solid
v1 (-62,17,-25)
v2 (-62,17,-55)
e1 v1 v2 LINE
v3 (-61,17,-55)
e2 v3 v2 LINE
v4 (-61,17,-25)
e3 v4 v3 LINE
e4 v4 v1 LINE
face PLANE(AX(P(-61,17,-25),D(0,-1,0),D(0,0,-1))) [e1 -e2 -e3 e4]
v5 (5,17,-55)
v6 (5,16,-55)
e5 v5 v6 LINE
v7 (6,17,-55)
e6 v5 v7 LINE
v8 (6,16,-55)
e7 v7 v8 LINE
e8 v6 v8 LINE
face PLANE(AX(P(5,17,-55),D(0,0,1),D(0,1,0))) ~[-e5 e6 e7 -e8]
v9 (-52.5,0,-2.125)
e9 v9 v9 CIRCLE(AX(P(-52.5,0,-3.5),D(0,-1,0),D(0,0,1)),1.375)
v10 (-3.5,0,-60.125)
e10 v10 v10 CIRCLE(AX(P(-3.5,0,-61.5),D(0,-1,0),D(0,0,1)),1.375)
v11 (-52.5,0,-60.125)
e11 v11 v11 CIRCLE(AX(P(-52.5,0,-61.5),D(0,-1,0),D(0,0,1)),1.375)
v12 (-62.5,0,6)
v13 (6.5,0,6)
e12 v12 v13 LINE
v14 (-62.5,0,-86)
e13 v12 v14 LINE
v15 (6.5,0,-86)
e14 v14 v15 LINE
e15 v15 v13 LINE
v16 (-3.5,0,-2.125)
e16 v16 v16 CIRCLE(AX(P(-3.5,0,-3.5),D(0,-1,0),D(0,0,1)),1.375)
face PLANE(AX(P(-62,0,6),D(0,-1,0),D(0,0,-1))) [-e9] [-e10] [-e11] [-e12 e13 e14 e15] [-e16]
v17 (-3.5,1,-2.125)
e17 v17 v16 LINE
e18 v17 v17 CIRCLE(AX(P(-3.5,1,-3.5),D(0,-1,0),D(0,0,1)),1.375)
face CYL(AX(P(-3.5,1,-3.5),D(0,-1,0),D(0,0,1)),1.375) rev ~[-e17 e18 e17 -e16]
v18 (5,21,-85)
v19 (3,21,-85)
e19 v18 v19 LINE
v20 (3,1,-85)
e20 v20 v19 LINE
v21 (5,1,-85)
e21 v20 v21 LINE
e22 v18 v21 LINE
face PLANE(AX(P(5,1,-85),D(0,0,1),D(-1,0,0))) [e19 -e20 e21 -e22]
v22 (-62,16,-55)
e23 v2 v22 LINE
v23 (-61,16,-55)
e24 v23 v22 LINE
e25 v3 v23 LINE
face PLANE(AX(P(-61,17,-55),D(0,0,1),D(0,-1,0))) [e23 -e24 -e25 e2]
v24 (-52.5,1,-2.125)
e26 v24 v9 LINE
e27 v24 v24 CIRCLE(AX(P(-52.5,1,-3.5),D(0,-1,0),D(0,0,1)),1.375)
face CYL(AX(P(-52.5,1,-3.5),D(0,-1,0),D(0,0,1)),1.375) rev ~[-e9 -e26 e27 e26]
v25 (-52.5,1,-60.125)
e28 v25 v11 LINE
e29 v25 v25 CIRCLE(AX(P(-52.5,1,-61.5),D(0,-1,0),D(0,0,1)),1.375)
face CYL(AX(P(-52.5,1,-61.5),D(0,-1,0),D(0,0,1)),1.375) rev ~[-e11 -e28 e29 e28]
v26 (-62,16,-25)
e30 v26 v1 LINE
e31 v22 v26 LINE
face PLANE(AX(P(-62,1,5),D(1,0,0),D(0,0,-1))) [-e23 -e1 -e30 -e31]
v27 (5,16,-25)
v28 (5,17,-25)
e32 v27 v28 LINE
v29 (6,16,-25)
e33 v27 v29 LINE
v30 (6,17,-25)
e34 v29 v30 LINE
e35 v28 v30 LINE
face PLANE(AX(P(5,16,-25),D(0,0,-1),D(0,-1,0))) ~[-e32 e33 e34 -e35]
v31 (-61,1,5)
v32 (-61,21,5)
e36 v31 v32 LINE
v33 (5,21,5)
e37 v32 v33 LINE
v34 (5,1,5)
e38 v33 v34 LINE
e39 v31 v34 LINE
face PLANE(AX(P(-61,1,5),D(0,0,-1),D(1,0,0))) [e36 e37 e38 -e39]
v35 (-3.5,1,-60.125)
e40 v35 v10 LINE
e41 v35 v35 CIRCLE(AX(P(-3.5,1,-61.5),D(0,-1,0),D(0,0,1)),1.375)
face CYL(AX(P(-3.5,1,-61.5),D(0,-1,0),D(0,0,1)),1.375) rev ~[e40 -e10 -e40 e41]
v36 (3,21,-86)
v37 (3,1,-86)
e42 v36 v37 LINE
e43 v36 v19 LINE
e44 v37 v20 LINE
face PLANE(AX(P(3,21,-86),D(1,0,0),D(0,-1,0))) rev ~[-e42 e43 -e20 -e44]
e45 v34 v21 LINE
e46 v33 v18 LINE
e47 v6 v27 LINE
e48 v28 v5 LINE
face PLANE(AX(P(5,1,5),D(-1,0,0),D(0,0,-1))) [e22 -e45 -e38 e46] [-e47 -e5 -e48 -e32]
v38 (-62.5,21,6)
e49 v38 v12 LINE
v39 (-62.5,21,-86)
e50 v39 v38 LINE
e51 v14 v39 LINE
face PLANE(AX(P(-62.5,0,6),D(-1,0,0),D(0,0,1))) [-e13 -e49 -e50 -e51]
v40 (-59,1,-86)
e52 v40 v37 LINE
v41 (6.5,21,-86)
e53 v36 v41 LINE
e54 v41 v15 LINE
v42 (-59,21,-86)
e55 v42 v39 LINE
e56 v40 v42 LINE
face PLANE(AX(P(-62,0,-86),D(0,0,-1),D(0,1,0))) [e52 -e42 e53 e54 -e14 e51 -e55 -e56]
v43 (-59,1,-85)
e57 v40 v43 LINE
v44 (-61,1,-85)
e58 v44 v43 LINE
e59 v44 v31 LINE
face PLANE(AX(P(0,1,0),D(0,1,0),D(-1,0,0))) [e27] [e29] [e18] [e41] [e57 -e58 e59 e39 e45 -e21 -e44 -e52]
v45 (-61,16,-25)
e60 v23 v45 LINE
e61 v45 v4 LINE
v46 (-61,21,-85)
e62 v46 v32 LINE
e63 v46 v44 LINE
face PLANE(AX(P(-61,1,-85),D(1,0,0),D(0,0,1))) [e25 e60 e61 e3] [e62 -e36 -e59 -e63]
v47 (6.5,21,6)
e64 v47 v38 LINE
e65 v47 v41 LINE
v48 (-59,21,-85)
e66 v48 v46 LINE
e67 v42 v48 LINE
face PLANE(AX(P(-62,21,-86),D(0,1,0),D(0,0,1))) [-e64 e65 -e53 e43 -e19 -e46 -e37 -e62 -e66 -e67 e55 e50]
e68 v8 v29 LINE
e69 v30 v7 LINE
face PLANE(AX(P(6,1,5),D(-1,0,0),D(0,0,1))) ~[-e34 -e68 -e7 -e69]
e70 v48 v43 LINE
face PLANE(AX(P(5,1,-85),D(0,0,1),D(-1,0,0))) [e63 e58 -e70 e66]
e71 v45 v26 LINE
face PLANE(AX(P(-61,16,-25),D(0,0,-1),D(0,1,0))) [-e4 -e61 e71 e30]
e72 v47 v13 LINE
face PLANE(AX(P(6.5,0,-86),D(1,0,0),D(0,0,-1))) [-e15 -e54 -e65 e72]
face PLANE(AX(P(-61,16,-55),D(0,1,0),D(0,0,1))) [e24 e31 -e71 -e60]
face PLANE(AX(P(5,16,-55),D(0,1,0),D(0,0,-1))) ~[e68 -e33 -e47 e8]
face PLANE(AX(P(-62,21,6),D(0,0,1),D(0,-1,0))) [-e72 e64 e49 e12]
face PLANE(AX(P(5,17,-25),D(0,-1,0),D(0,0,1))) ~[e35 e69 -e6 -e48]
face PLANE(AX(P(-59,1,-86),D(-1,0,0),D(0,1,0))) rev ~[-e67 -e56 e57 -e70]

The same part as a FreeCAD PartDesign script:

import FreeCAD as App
import Part
import Sketcher

V = App.Vector
Q = App.Units.Quantity


def add_polygon(sketch, points):
    """Adds a closed chain of lines whose ends are joined by coincident constraints."""
    first, n = sketch.GeometryCount, len(points)
    for a, b in zip(points, points[1:] + points[:1]):
        sketch.addGeometry(Part.LineSegment(App.Vector(*a, 0), App.Vector(*b, 0)), False)
    for i in range(n):
        sketch.addConstraint(Sketcher.Constraint("Coincident", first + i, 2, first + (i + 1) % n, 1))

doc = App.newDocument("Part")
body = doc.addObject("PartDesign::Body", "Body")

# Sketch on XZ plane
sketch1 = body.newObject("Sketcher::SketchObject", "Sketch")
sketch1.AttachmentSupport = (doc.getObject("XZ_Plane"), [""])
sketch1.MapMode = "FlatFace"
add_polygon(sketch1, [(5, -85), (-61, -85), (-61, 5), (5, 5)])  # lines 0-3
sketch1.addConstraint([
    Sketcher.Constraint("Horizontal", 0),
    Sketcher.Constraint("Vertical", 1),
    Sketcher.Constraint("Horizontal", 2),
    Sketcher.Constraint("Vertical", 3),
    Sketcher.Constraint("DistanceY", 1, 1, 1, 2, Q("90 mm")),
    Sketcher.Constraint("DistanceY", 0, 2, -1, 1, Q("85 mm")),
    Sketcher.Constraint("DistanceX", -1, 1, 2, 2, Q("5 mm")),
    Sketcher.Constraint("DistanceX", 0, 2, 0, 1, Q("66 mm")),
])
pad1 = body.newObject("PartDesign::Pad", "Pad")
pad1.Profile = sketch1
pad1.Length = 1
pad1.Reversed = True

# Sketch on XZ plane
sketch2 = body.newObject("Sketcher::SketchObject", "Sketch001")
sketch2.AttachmentSupport = (doc.getObject("XZ_Plane"), [""])
sketch2.MapMode = "FlatFace"
sketch2.AttachmentOffset = App.Placement(V(0, 0, -1), App.Rotation())
sketch2.addGeometry([
    Part.Circle(V(-52.5, -61.5, 0), V(0, 0, 1), 1.4),
    Part.Circle(V(-52.5, -3.5, 0), V(0, 0, 1), 1.4),
    Part.Circle(V(-3.5, -3.5, 0), V(0, 0, 1), 1.4),
    Part.Circle(V(-3.5, -61.5, 0), V(0, 0, 1), 1.4),
], False)
sketch2.addConstraint([
    Sketcher.Constraint("Equal", 0, 1),
    Sketcher.Constraint("Equal", 1, 2),
    Sketcher.Constraint("Equal", 2, 3),
    Sketcher.Constraint("Horizontal", 1, 3, 2, 3),
    Sketcher.Constraint("Horizontal", 0, 3, 3, 3),
    Sketcher.Constraint("Vertical", 0, 3, 1, 3),
    Sketcher.Constraint("Vertical", 2, 3, 3, 3),
    Sketcher.Constraint("Diameter", 0, Q("2.75 mm")),
    Sketcher.Constraint("DistanceY", 0, 3, 1, 3, Q("58 mm")),
    Sketcher.Constraint("DistanceX", 1, 3, 2, 3, Q("49 mm")),
    Sketcher.Constraint("DistanceX", 0, 3, -1, 1, Q("52.5 mm")),
    Sketcher.Constraint("DistanceY", 0, 3, -1, 1, Q("61.5 mm")),
])
doc.recompute()
hole = body.newObject("PartDesign::Hole", "Hole")
hole.Profile = sketch2
hole.ThreadType = "None"
hole.Diameter = 2.75
hole.DepthType = "ThroughAll"
hole.Reversed = True

# Sketch on XZ plane
sketch3 = body.newObject("Sketcher::SketchObject", "Sketch002")
sketch3.AttachmentSupport = (doc.getObject("XZ_Plane"), [""])
sketch3.MapMode = "FlatFace"
sketch3.AttachmentOffset = App.Placement(V(0, 0, -1), App.Rotation())
add_polygon(sketch3, [(6, -86), (-62, -86), (-62, 6), (6, 6)])  # lines 0-3
add_polygon(sketch3, [(5, 5), (-61, 5), (-61, -85), (5, -85)])  # lines 4-7
sketch3.addConstraint([
    Sketcher.Constraint("Horizontal", 0),
    Sketcher.Constraint("Vertical", 1),
    Sketcher.Constraint("Horizontal", 2),
    Sketcher.Constraint("Vertical", 3),
    Sketcher.Constraint("Horizontal", 4),
    Sketcher.Constraint("Vertical", 5),
    Sketcher.Constraint("Horizontal", 6),
    Sketcher.Constraint("Vertical", 7),
    Sketcher.Constraint("DistanceX", 1, 2, 4, 2, Q("1 mm")),
    Sketcher.Constraint("DistanceY", 4, 2, 1, 2, Q("1 mm")),
    Sketcher.Constraint("DistanceY", 0, 2, 5, 2, Q("1 mm")),
    Sketcher.Constraint("DistanceX", 6, 2, 3, 2, Q("1 mm")),
    Sketcher.Constraint("DistanceX", 0, 2, 0, 1, Q("68 mm")),
    Sketcher.Constraint("DistanceY", 1, 1, 1, 2, Q("92 mm")),
    Sketcher.Constraint("DistanceX", 0, 2, -1, 1, Q("62 mm")),
    Sketcher.Constraint("DistanceY", 0, 2, -1, 1, Q("86 mm")),
])
pad2 = body.newObject("PartDesign::Pad", "Pad001")
pad2.Profile = sketch3
pad2.Type = "TwoLengths"
pad2.Length = 20
pad2.Length2 = 1
pad2.Reversed = True

# Sketch on XY plane
sketch4 = body.newObject("Sketcher::SketchObject", "Sketch003")
sketch4.AttachmentSupport = (doc.getObject("XY_Plane"), [""])
sketch4.MapMode = "FlatFace"
sketch4.AttachmentOffset = App.Placement(V(0, 0, -86), App.Rotation())
add_polygon(sketch4, [(3, 1), (-59, 1), (-59, 21), (3, 21)])  # lines 0-3
sketch4.addConstraint([
    Sketcher.Constraint("Horizontal", 0),
    Sketcher.Constraint("Vertical", 1),
    Sketcher.Constraint("Horizontal", 2),
    Sketcher.Constraint("Vertical", 3),
    Sketcher.Constraint("DistanceX", 0, 2, 0, 1, Q("62 mm")),
    Sketcher.Constraint("DistanceY", 1, 1, 1, 2, Q("20 mm")),
    Sketcher.Constraint("DistanceX", 0, 2, -1, 1, Q("59 mm")),
    Sketcher.Constraint("DistanceY", -1, 1, 0, 2, Q("1 mm")),
])
pocket1 = body.newObject("PartDesign::Pocket", "Pocket")
pocket1.Profile = sketch4
pocket1.Length = 2
pocket1.Reversed = True

# Sketch on YZ plane
sketch5 = body.newObject("Sketcher::SketchObject", "Sketch004")
sketch5.AttachmentSupport = (doc.getObject("YZ_Plane"), [""])
sketch5.MapMode = "FlatFace"
sketch5.AttachmentOffset = App.Placement(V(0, 0, 6), App.Rotation())
add_polygon(sketch5, [(0, -86), (21, -86), (21, 6), (0, 6)])  # lines 0-3
sketch5.addConstraint([
    Sketcher.Constraint("Horizontal", 0),
    Sketcher.Constraint("Vertical", 1),
    Sketcher.Constraint("Horizontal", 2),
    Sketcher.Constraint("Vertical", 3),
    Sketcher.Constraint("PointOnObject", 2, 2, -2),
    Sketcher.Constraint("DistanceX", 0, 1, 0, 2, Q("21 mm")),
    Sketcher.Constraint("DistanceY", 1, 1, 1, 2, Q("92 mm")),
    Sketcher.Constraint("DistanceY", 0, 2, -1, 1, Q("86 mm")),
])
pad3 = body.newObject("PartDesign::Pad", "Pad002")
pad3.Profile = sketch5
pad3.Length = 0.5

# Sketch on YZ plane
sketch6 = body.newObject("Sketcher::SketchObject", "Sketch005")
sketch6.AttachmentSupport = (doc.getObject("YZ_Plane"), [""])
sketch6.MapMode = "FlatFace"
sketch6.AttachmentOffset = App.Placement(V(0, 0, -62), App.Rotation())
add_polygon(sketch6, [(0, 6), (21, 6), (21, -86), (0, -86)])  # lines 0-3
sketch6.addConstraint([
    Sketcher.Constraint("Horizontal", 0),
    Sketcher.Constraint("Vertical", 1),
    Sketcher.Constraint("Horizontal", 2),
    Sketcher.Constraint("Vertical", 3),
    Sketcher.Constraint("PointOnObject", 2, 2, -2),
    Sketcher.Constraint("DistanceX", 0, 1, 0, 2, Q("21 mm")),
    Sketcher.Constraint("DistanceY", 1, 2, 1, 1, Q("92 mm")),
    Sketcher.Constraint("DistanceY", -1, 1, 0, 2, Q("6 mm")),
])
pad4 = body.newObject("PartDesign::Pad", "Pad003")
pad4.Profile = sketch6
pad4.Length = 0.5
pad4.Reversed = True

# Sketch on YZ plane
sketch7 = body.newObject("Sketcher::SketchObject", "Sketch006")
sketch7.AttachmentSupport = (doc.getObject("YZ_Plane"), [""])
sketch7.MapMode = "FlatFace"
sketch7.AttachmentOffset = App.Placement(V(0, 0, -61), App.Rotation())
add_polygon(sketch7, [(17, -55), (17, -25), (16, -25), (16, -55)])  # lines 0-3
sketch7.addConstraint([
    Sketcher.Constraint("Vertical", 0),
    Sketcher.Constraint("Horizontal", 1),
    Sketcher.Constraint("Vertical", 2),
    Sketcher.Constraint("Horizontal", 3),
    Sketcher.Constraint("DistanceX", 1, 2, 1, 1, Q("1 mm")),
    Sketcher.Constraint("DistanceY", 0, 1, 0, 2, Q("30 mm")),
    Sketcher.Constraint("DistanceX", -1, 1, 0, 2, Q("17 mm")),
    Sketcher.Constraint("DistanceY", 0, 2, -1, 1, Q("25 mm")),
])
pocket2 = body.newObject("PartDesign::Pocket", "Pocket001")
pocket2.Profile = sketch7
pocket2.Length = 1
doc.recompute()

datumplane = body.newObject("PartDesign::Plane", "DatumPlane")
datumplane.AttachmentSupport = (doc.getObject("YZ_Plane"), [""])
datumplane.MapMode = "FlatFace"
datumplane.AttachmentOffset = App.Placement(V(0, 0, -28), App.Rotation())
mirrored = body.newObject("PartDesign::Mirrored", "Mirrored")
mirrored.Originals = [pocket2]
mirrored.MirrorPlane = (datumplane, [""])
body.Tip = mirrored

doc.recompute()
